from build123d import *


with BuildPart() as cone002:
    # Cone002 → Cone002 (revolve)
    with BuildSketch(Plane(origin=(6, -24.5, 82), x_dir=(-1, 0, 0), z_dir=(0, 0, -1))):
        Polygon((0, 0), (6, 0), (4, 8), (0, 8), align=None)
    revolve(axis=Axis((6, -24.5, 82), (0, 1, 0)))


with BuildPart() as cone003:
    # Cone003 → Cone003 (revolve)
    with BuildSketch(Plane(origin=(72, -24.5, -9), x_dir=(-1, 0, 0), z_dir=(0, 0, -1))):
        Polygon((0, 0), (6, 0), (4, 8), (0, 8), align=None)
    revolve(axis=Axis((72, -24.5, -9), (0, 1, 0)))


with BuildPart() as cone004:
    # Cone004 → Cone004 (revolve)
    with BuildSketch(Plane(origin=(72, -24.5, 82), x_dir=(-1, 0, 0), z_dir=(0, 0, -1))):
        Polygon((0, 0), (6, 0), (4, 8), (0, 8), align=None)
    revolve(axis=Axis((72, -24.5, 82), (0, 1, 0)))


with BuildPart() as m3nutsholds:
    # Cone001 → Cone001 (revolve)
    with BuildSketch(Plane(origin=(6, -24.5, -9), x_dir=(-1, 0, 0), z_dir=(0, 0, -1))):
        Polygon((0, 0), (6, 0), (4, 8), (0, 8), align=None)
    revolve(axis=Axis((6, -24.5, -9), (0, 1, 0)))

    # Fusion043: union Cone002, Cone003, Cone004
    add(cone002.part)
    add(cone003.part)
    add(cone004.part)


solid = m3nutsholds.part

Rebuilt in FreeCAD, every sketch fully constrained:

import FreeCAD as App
import Part
import Sketcher
Q = App.Units.Quantity

doc = App.newDocument("Part")
params = doc.addObject("Spreadsheet::Sheet", "Params")
for row, (alias, value) in enumerate([
    ("sketch1_width", "6 mm"),
    ("sketch1_width2", "4 mm"),
    ("sketch1_height", "8 mm"),
    ("revolution_angle", "360 deg"),
    ("sketch2_width", "6 mm"),
    ("sketch2_width2", "4 mm"),
    ("sketch2_height", "8 mm"),
    ("revolution2_angle", "360 deg"),
    ("sketch3_width", "6 mm"),
    ("sketch3_width2", "4 mm"),
    ("sketch3_height", "8 mm"),
    ("revolution3_angle", "360 deg"),
    ("sketch4_width", "6 mm"),
    ("sketch4_width2", "4 mm"),
    ("sketch4_height", "8 mm"),
    ("revolution4_angle", "360 deg"),
], start=1):
    params.set(f"A{row}", alias)
    params.set(f"B{row}", "=" + value)
    params.setAlias(f"B{row}", alias)

body = doc.addObject("PartDesign::Body", "Body")

# Sketch on XY plane
sketch1 = body.newObject("Sketcher::SketchObject", "Sketch")
sketch1.AttachmentSupport = (doc.getObject("XY_Plane"), [""])
sketch1.MapMode = "FlatFace"
sketch1.AttachmentOffset = App.Placement(App.Vector(0, 0, 82), App.Rotation())
sketch1.addGeometry(Part.LineSegment(App.Vector(6, -24.5, 0), App.Vector(0, -24.5, 0)), False)
sketch1.addGeometry(Part.LineSegment(App.Vector(0, -24.5, 0), App.Vector(2, -16.5, 0)), False)
sketch1.addGeometry(Part.LineSegment(App.Vector(2, -16.5, 0), App.Vector(6, -16.5, 0)), False)
sketch1.addGeometry(Part.LineSegment(App.Vector(6, -16.5, 0), App.Vector(6, -24.5, 0)), False)
sketch1.addGeometry(Part.LineSegment(App.Vector(6, -24.5, 0), App.Vector(6, -16.5, 0)), True)  # axis
sketch1.addConstraint(Sketcher.Constraint("Coincident", 0, 2, 1, 1))
sketch1.addConstraint(Sketcher.Constraint("Coincident", 1, 2, 2, 1))
sketch1.addConstraint(Sketcher.Constraint("Coincident", 2, 2, 3, 1))
sketch1.addConstraint(Sketcher.Constraint("Coincident", 3, 2, 0, 1))
sketch1.addConstraint(Sketcher.Constraint("Horizontal", 0))
sketch1.addConstraint(Sketcher.Constraint("Horizontal", 2))
sketch1.addConstraint(Sketcher.Constraint("Vertical", 3))
sketch1.addConstraint(Sketcher.Constraint("Vertical", 4))
sketch1.addConstraint(Sketcher.Constraint("Coincident", 4, 1, 3, 2))
sketch1.addConstraint(Sketcher.Constraint("PointOnObject", 0, 2, -2))
sketch1.addConstraint(Sketcher.Constraint("Horizontal", 1, 2, 4, 2))
sketch1.addConstraint(Sketcher.Constraint("DistanceX", 0, 2, 0, 1, Q("6 mm")))
sketch1.addConstraint(Sketcher.Constraint("DistanceX", 2, 1, 2, 2, Q("4 mm")))
sketch1.addConstraint(Sketcher.Constraint("DistanceY", 3, 2, 3, 1, Q("8 mm")))
sketch1.addConstraint(Sketcher.Constraint("DistanceY", 0, 2, -1, 1, Q("24.5 mm")))
sketch1.setExpression("Constraints[11]", "Params.sketch1_width")
sketch1.setExpression("Constraints[12]", "Params.sketch1_width2")
sketch1.setExpression("Constraints[13]", "Params.sketch1_height")
revolution = body.newObject("PartDesign::Revolution", "Revolution")
revolution.Profile = sketch1
revolution.ReferenceAxis = (sketch1, ["Axis0"])
revolution.setExpression("Angle", "Params.revolution_angle")
body2 = doc.addObject("PartDesign::Body", "Body001")

# Sketch on XY plane
sketch2 = body2.newObject("Sketcher::SketchObject", "Sketch001")
sketch2.AttachmentSupport = (doc.getObject("XY_Plane001"), [""])
sketch2.MapMode = "FlatFace"
sketch2.AttachmentOffset = App.Placement(App.Vector(0, 0, -9), App.Rotation())
sketch2.addGeometry(Part.LineSegment(App.Vector(72, -24.5, 0), App.Vector(66, -24.5, 0)), False)
sketch2.addGeometry(Part.LineSegment(App.Vector(66, -24.5, 0), App.Vector(68, -16.5, 0)), False)
sketch2.addGeometry(Part.LineSegment(App.Vector(68, -16.5, 0), App.Vector(72, -16.5, 0)), False)
sketch2.addGeometry(Part.LineSegment(App.Vector(72, -16.5, 0), App.Vector(72, -24.5, 0)), False)
sketch2.addGeometry(Part.LineSegment(App.Vector(72, -24.5, 0), App.Vector(72, -16.5, 0)), True)  # axis
sketch2.addConstraint(Sketcher.Constraint("Coincident", 0, 2, 1, 1))
sketch2.addConstraint(Sketcher.Constraint("Coincident", 1, 2, 2, 1))
sketch2.addConstraint(Sketcher.Constraint("Coincident", 2, 2, 3, 1))
sketch2.addConstraint(Sketcher.Constraint("Coincident", 3, 2, 0, 1))
sketch2.addConstraint(Sketcher.Constraint("Horizontal", 0))
sketch2.addConstraint(Sketcher.Constraint("Horizontal", 2))
sketch2.addConstraint(Sketcher.Constraint("Vertical", 3))
sketch2.addConstraint(Sketcher.Constraint("Vertical", 4))
sketch2.addConstraint(Sketcher.Constraint("Coincident", 4, 1, 3, 2))
sketch2.addConstraint(Sketcher.Constraint("Horizontal", 1, 2, 4, 2))
sketch2.addConstraint(Sketcher.Constraint("DistanceX", 0, 2, 0, 1, Q("6 mm")))
sketch2.addConstraint(Sketcher.Constraint("DistanceX", 2, 1, 2, 2, Q("4 mm")))
sketch2.addConstraint(Sketcher.Constraint("DistanceY", 3, 2, 3, 1, Q("8 mm")))
sketch2.addConstraint(Sketcher.Constraint("DistanceX", -1, 1, 0, 2, Q("66 mm")))
sketch2.addConstraint(Sketcher.Constraint("DistanceY", 0, 2, -1, 1, Q("24.5 mm")))
sketch2.setExpression("Constraints[10]", "Params.sketch2_width")
sketch2.setExpression("Constraints[11]", "Params.sketch2_width2")
sketch2.setExpression("Constraints[12]", "Params.sketch2_height")
revolution2 = body2.newObject("PartDesign::Revolution", "Revolution001")
revolution2.Profile = sketch2
revolution2.ReferenceAxis = (sketch2, ["Axis0"])
revolution2.setExpression("Angle", "Params.revolution2_angle")
body3 = doc.addObject("PartDesign::Body", "Body002")

# Sketch on XY plane
sketch3 = body3.newObject("Sketcher::SketchObject", "Sketch002")
sketch3.AttachmentSupport = (doc.getObject("XY_Plane002"), [""])
sketch3.MapMode = "FlatFace"
sketch3.AttachmentOffset = App.Placement(App.Vector(0, 0, 82), App.Rotation())
sketch3.addGeometry(Part.LineSegment(App.Vector(72, -24.5, 0), App.Vector(66, -24.5, 0)), False)
sketch3.addGeometry(Part.LineSegment(App.Vector(66, -24.5, 0), App.Vector(68, -16.5, 0)), False)
sketch3.addGeometry(Part.LineSegment(App.Vector(68, -16.5, 0), App.Vector(72, -16.5, 0)), False)
sketch3.addGeometry(Part.LineSegment(App.Vector(72, -16.5, 0), App.Vector(72, -24.5, 0)), False)
sketch3.addGeometry(Part.LineSegment(App.Vector(72, -24.5, 0), App.Vector(72, -16.5, 0)), True)  # axis
sketch3.addConstraint(Sketcher.Constraint("Coincident", 0, 2, 1, 1))
sketch3.addConstraint(Sketcher.Constraint("Coincident", 1, 2, 2, 1))
sketch3.addConstraint(Sketcher.Constraint("Coincident", 2, 2, 3, 1))
sketch3.addConstraint(Sketcher.Constraint("Coincident", 3, 2, 0, 1))
sketch3.addConstraint(Sketcher.Constraint("Horizontal", 0))
sketch3.addConstraint(Sketcher.Constraint("Horizontal", 2))
sketch3.addConstraint(Sketcher.Constraint("Vertical", 3))
sketch3.addConstraint(Sketcher.Constraint("Vertical", 4))
sketch3.addConstraint(Sketcher.Constraint("Coincident", 4, 1, 3, 2))
sketch3.addConstraint(Sketcher.Constraint("Horizontal", 1, 2, 4, 2))
sketch3.addConstraint(Sketcher.Constraint("DistanceX", 0, 2, 0, 1, Q("6 mm")))
sketch3.addConstraint(Sketcher.Constraint("DistanceX", 2, 1, 2, 2, Q("4 mm")))
sketch3.addConstraint(Sketcher.Constraint("DistanceY", 3, 2, 3, 1, Q("8 mm")))
sketch3.addConstraint(Sketcher.Constraint("DistanceX", -1, 1, 0, 2, Q("66 mm")))
sketch3.addConstraint(Sketcher.Constraint("DistanceY", 0, 2, -1, 1, Q("24.5 mm")))
sketch3.setExpression("Constraints[10]", "Params.sketch3_width")
sketch3.setExpression("Constraints[11]", "Params.sketch3_width2")
sketch3.setExpression("Constraints[12]", "Params.sketch3_height")
revolution3 = body3.newObject("PartDesign::Revolution", "Revolution002")
revolution3.Profile = sketch3
revolution3.ReferenceAxis = (sketch3, ["Axis0"])
revolution3.setExpression("Angle", "Params.revolution3_angle")
body4 = doc.addObject("PartDesign::Body", "Body003")
body4.AllowCompound = True

# Sketch on XY plane
sketch4 = body4.newObject("Sketcher::SketchObject", "Sketch003")
sketch4.AttachmentSupport = (doc.getObject("XY_Plane003"), [""])
sketch4.MapMode = "FlatFace"
sketch4.AttachmentOffset = App.Placement(App.Vector(0, 0, -9), App.Rotation())
sketch4.addGeometry(Part.LineSegment(App.Vector(6, -24.5, 0), App.Vector(0, -24.5, 0)), False)
sketch4.addGeometry(Part.LineSegment(App.Vector(0, -24.5, 0), App.Vector(2, -16.5, 0)), False)
sketch4.addGeometry(Part.LineSegment(App.Vector(2, -16.5, 0), App.Vector(6, -16.5, 0)), False)
sketch4.addGeometry(Part.LineSegment(App.Vector(6, -16.5, 0), App.Vector(6, -24.5, 0)), False)
sketch4.addGeometry(Part.LineSegment(App.Vector(6, -24.5, 0), App.Vector(6, -16.5, 0)), True)  # axis
sketch4.addConstraint(Sketcher.Constraint("Coincident", 0, 2, 1, 1))
sketch4.addConstraint(Sketcher.Constraint("Coincident", 1, 2, 2, 1))
sketch4.addConstraint(Sketcher.Constraint("Coincident", 2, 2, 3, 1))
sketch4.addConstraint(Sketcher.Constraint("Coincident", 3, 2, 0, 1))
sketch4.addConstraint(Sketcher.Constraint("Horizontal", 0))
sketch4.addConstraint(Sketcher.Constraint("Horizontal", 2))
sketch4.addConstraint(Sketcher.Constraint("Vertical", 3))
sketch4.addConstraint(Sketcher.Constraint("Vertical", 4))
sketch4.addConstraint(Sketcher.Constraint("Coincident", 4, 1, 3, 2))
sketch4.addConstraint(Sketcher.Constraint("PointOnObject", 0, 2, -2))
sketch4.addConstraint(Sketcher.Constraint("Horizontal", 1, 2, 4, 2))
sketch4.addConstraint(Sketcher.Constraint("DistanceX", 0, 2, 0, 1, Q("6 mm")))
sketch4.addConstraint(Sketcher.Constraint("DistanceX", 2, 1, 2, 2, Q("4 mm")))
sketch4.addConstraint(Sketcher.Constraint("DistanceY", 3, 2, 3, 1, Q("8 mm")))
sketch4.addConstraint(Sketcher.Constraint("DistanceY", 0, 2, -1, 1, Q("24.5 mm")))
sketch4.setExpression("Constraints[11]", "Params.sketch4_width")
sketch4.setExpression("Constraints[12]", "Params.sketch4_width2")
sketch4.setExpression("Constraints[13]", "Params.sketch4_height")
revolution4 = body4.newObject("PartDesign::Revolution", "Revolution003")
revolution4.Profile = sketch4
revolution4.ReferenceAxis = (sketch4, ["Axis0"])
revolution4.setExpression("Angle", "Params.revolution4_angle")
doc.recompute()

boolean = body4.newObject("PartDesign::Boolean", "Boolean")
boolean.Type = "Fuse"
boolean.addObjects([body])
doc.recompute()

boolean2 = body4.newObject("PartDesign::Boolean", "Boolean001")
boolean2.Type = "Fuse"
boolean2.addObjects([body2])
doc.recompute()

boolean3 = body4.newObject("PartDesign::Boolean", "Boolean002")
boolean3.Type = "Fuse"
boolean3.addObjects([body3])

doc.recompute()
